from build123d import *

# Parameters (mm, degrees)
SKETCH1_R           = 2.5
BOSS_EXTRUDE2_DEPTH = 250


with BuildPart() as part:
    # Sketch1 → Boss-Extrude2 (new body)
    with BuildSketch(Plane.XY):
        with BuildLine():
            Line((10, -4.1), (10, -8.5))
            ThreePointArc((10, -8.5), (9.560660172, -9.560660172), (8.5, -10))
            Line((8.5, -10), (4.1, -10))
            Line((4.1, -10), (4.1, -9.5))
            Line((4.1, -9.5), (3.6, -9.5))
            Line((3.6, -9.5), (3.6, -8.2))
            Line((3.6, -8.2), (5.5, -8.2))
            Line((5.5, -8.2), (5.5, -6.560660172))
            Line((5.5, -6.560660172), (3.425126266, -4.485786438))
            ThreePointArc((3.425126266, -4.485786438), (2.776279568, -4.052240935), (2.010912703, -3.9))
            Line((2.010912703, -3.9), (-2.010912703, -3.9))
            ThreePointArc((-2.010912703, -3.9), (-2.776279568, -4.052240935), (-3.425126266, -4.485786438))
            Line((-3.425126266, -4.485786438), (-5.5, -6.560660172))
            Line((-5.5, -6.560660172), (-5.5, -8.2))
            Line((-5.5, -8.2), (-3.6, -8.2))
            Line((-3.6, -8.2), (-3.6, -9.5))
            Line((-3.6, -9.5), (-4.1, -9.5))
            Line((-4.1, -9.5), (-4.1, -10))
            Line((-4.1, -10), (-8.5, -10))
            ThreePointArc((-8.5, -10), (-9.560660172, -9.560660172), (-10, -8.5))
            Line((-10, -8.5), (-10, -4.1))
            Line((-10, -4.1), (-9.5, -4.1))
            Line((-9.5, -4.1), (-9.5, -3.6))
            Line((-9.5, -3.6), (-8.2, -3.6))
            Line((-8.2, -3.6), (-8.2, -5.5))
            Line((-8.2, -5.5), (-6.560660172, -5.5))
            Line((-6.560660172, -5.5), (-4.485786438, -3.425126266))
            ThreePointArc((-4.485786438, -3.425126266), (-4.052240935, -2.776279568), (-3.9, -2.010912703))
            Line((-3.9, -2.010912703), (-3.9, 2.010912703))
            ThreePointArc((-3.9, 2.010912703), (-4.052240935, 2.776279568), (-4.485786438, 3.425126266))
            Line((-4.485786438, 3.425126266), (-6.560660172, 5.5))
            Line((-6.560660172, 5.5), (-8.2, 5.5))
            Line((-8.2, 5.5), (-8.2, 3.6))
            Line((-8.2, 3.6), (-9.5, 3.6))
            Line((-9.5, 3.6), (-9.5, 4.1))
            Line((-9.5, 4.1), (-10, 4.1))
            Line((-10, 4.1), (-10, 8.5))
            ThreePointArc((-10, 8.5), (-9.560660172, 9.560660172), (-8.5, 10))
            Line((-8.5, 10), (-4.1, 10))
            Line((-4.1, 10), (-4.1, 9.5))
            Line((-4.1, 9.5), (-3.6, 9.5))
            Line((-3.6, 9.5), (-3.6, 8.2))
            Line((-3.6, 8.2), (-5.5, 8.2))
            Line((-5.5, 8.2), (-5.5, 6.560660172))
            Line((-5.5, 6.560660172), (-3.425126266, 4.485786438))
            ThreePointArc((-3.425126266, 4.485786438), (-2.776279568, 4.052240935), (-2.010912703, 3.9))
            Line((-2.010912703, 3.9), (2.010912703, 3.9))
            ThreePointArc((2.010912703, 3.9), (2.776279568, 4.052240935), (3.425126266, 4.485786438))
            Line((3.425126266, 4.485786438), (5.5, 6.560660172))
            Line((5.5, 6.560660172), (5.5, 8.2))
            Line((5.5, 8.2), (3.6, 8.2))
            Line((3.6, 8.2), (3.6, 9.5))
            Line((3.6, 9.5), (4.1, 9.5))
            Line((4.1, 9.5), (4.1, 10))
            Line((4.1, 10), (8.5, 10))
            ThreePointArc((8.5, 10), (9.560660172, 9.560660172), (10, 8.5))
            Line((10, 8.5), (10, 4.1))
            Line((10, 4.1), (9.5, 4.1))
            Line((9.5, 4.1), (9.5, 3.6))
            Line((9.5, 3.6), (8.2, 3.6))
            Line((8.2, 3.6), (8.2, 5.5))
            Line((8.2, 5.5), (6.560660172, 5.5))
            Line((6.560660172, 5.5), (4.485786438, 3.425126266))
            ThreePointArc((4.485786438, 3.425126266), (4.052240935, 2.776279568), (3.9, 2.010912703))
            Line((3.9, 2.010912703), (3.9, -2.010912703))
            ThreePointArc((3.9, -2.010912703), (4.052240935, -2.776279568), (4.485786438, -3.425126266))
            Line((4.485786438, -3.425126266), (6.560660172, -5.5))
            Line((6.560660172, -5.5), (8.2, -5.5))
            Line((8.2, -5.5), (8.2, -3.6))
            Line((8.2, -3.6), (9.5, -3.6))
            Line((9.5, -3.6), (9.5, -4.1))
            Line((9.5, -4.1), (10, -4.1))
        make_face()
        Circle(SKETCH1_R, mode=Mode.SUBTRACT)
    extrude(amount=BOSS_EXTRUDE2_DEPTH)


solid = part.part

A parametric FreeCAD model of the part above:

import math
import FreeCAD as App
import Part
import Sketcher

V = App.Vector

doc = App.newDocument("Part")
params = doc.addObject("Spreadsheet::Sheet", "Params")
for row, (alias, value) in enumerate([
    ("sketch1_diameter", "5 mm"),
    ("sketch1_radius", "2 mm"),
    ("sketch1_radius2", "1.5 mm"),
    ("sketch1_width", "0.5 mm"),
    ("sketch1_width2", "1.3 mm"),
    ("pad1_length", "250 mm"),
], start=1):
    params.set(f"A{row}", alias)
    params.set(f"B{row}", "=" + value)
    params.setAlias(f"B{row}", alias)

body = doc.addObject("PartDesign::Body", "Body")

# Sketch on XY plane
sketch1 = body.newObject("Sketcher::SketchObject", "Sketch")
sketch1.AttachmentSupport = (doc.getObject("XY_Plane"), [""])
sketch1.MapMode = "FlatFace"
sketch1.addGeometry(Part.LineSegment(V(10, -8.5, 0), V(10, -4.1, 0)), False)
sketch1.addGeometry(Part.LineSegment(V(10, -4.1, 0), V(9.5, -4.1, 0)), False)
sketch1.addGeometry(Part.LineSegment(V(9.5, -4.1, 0), V(9.5, -3.6, 0)), False)
sketch1.addGeometry(Part.LineSegment(V(9.5, -3.6, 0), V(8.2, -3.6, 0)), False)
sketch1.addGeometry(Part.LineSegment(V(8.2, -3.6, 0), V(8.2, -5.5, 0)), False)
sketch1.addGeometry(Part.LineSegment(V(8.2, -5.5, 0), V(6.56, -5.5, 0)), False)
sketch1.addGeometry(Part.LineSegment(V(6.56, -5.5, 0), V(4.49, -3.43, 0)), False)
sketch1.addGeometry(Part.ArcOfCircle(Part.Circle(V(5.9, -2.01, 0), V(0, 0, 1), 2), math.radians(180), math.radians(225)), False)
sketch1.addGeometry(Part.LineSegment(V(3.9, -2.01, 0), V(3.9, 2.01, 0)), False)
sketch1.addGeometry(Part.ArcOfCircle(Part.Circle(V(5.9, 2.01, 0), V(0, 0, 1), 2), math.radians(135), math.radians(180)), False)
sketch1.addGeometry(Part.LineSegment(V(4.49, 3.43, 0), V(6.56, 5.5, 0)), False)
sketch1.addGeometry(Part.LineSegment(V(6.56, 5.5, 0), V(8.2, 5.5, 0)), False)
sketch1.addGeometry(Part.LineSegment(V(8.2, 5.5, 0), V(8.2, 3.6, 0)), False)
sketch1.addGeometry(Part.LineSegment(V(8.2, 3.6, 0), V(9.5, 3.6, 0)), False)
sketch1.addGeometry(Part.LineSegment(V(9.5, 3.6, 0), V(9.5, 4.1, 0)), False)
sketch1.addGeometry(Part.LineSegment(V(9.5, 4.1, 0), V(10, 4.1, 0)), False)
sketch1.addGeometry(Part.LineSegment(V(10, 4.1, 0), V(10, 8.5, 0)), False)
sketch1.addGeometry(Part.ArcOfCircle(Part.Circle(V(8.5, 8.5, 0), V(0, 0, 1), 1.5), math.radians(0), math.radians(90)), False)
sketch1.addGeometry(Part.LineSegment(V(8.5, 10, 0), V(4.1, 10, 0)), False)
sketch1.addGeometry(Part.LineSegment(V(4.1, 10, 0), V(4.1, 9.5, 0)), False)
sketch1.addGeometry(Part.LineSegment(V(4.1, 9.5, 0), V(3.6, 9.5, 0)), False)
sketch1.addGeometry(Part.LineSegment(V(3.6, 9.5, 0), V(3.6, 8.2, 0)), False)
sketch1.addGeometry(Part.LineSegment(V(3.6, 8.2, 0), V(5.5, 8.2, 0)), False)
sketch1.addGeometry(Part.LineSegment(V(5.5, 8.2, 0), V(5.5, 6.56, 0)), False)
sketch1.addGeometry(Part.LineSegment(V(5.5, 6.56, 0), V(3.43, 4.49, 0)), False)
sketch1.addGeometry(Part.ArcOfCircle(Part.Circle(V(2.01, 5.9, 0), V(0, 0, 1), 2), math.radians(-90), math.radians(-45)), False)
sketch1.addGeometry(Part.LineSegment(V(2.01, 3.9, 0), V(-2.01, 3.9, 0)), False)
sketch1.addGeometry(Part.ArcOfCircle(Part.Circle(V(-2.01, 5.9, 0), V(0, 0, 1), 2), math.radians(-135), math.radians(-90)), False)
sketch1.addGeometry(Part.LineSegment(V(-3.43, 4.49, 0), V(-5.5, 6.56, 0)), False)
sketch1.addGeometry(Part.LineSegment(V(-5.5, 6.56, 0), V(-5.5, 8.2, 0)), False)
sketch1.addGeometry(Part.LineSegment(V(-5.5, 8.2, 0), V(-3.6, 8.2, 0)), False)
sketch1.addGeometry(Part.LineSegment(V(-3.6, 8.2, 0), V(-3.6, 9.5, 0)), False)
sketch1.addGeometry(Part.LineSegment(V(-3.6, 9.5, 0), V(-4.1, 9.5, 0)), False)
sketch1.addGeometry(Part.LineSegment(V(-4.1, 9.5, 0), V(-4.1, 10, 0)), False)
sketch1.addGeometry(Part.LineSegment(V(-4.1, 10, 0), V(-8.5, 10, 0)), False)
sketch1.addGeometry(Part.ArcOfCircle(Part.Circle(V(-8.5, 8.5, 0), V(0, 0, 1), 1.5), math.radians(90), math.radians(180)), False)
sketch1.addGeometry(Part.LineSegment(V(-10, 8.5, 0), V(-10, 4.1, 0)), False)
sketch1.addGeometry(Part.LineSegment(V(-10, 4.1, 0), V(-9.5, 4.1, 0)), False)
sketch1.addGeometry(Part.LineSegment(V(-9.5, 4.1, 0), V(-9.5, 3.6, 0)), False)
sketch1.addGeometry(Part.LineSegment(V(-9.5, 3.6, 0), V(-8.2, 3.6, 0)), False)
sketch1.addGeometry(Part.LineSegment(V(-8.2, 3.6, 0), V(-8.2, 5.5, 0)), False)
sketch1.addGeometry(Part.LineSegment(V(-8.2, 5.5, 0), V(-6.56, 5.5, 0)), False)
sketch1.addGeometry(Part.LineSegment(V(-6.56, 5.5, 0), V(-4.49, 3.43, 0)), False)
sketch1.addGeometry(Part.ArcOfCircle(Part.Circle(V(-5.9, 2.01, 0), V(0, 0, 1), 2), math.radians(0), math.radians(45)), False)
sketch1.addGeometry(Part.LineSegment(V(-3.9, 2.01, 0), V(-3.9, -2.01, 0)), False)
sketch1.addGeometry(Part.ArcOfCircle(Part.Circle(V(-5.9, -2.01, 0), V(0, 0, 1), 2), math.radians(-45), math.radians(0)), False)
sketch1.addGeometry(Part.LineSegment(V(-4.49, -3.43, 0), V(-6.56, -5.5, 0)), False)
sketch1.addGeometry(Part.LineSegment(V(-6.56, -5.5, 0), V(-8.2, -5.5, 0)), False)
sketch1.addGeometry(Part.LineSegment(V(-8.2, -5.5, 0), V(-8.2, -3.6, 0)), False)
sketch1.addGeometry(Part.LineSegment(V(-8.2, -3.6, 0), V(-9.5, -3.6, 0)), False)
sketch1.addGeometry(Part.LineSegment(V(-9.5, -3.6, 0), V(-9.5, -4.1, 0)), False)
sketch1.addGeometry(Part.LineSegment(V(-9.5, -4.1, 0), V(-10, -4.1, 0)), False)
sketch1.addGeometry(Part.LineSegment(V(-10, -4.1, 0), V(-10, -8.5, 0)), False)
sketch1.addGeometry(Part.ArcOfCircle(Part.Circle(V(-8.5, -8.5, 0), V(0, 0, 1), 1.5), math.radians(180), math.radians(270)), False)
sketch1.addGeometry(Part.LineSegment(V(-8.5, -10, 0), V(-4.1, -10, 0)), False)
sketch1.addGeometry(Part.LineSegment(V(-4.1, -10, 0), V(-4.1, -9.5, 0)), False)
sketch1.addGeometry(Part.LineSegment(V(-4.1, -9.5, 0), V(-3.6, -9.5, 0)), False)
sketch1.addGeometry(Part.LineSegment(V(-3.6, -9.5, 0), V(-3.6, -8.2, 0)), False)
sketch1.addGeometry(Part.LineSegment(V(-3.6, -8.2, 0), V(-5.5, -8.2, 0)), False)
sketch1.addGeometry(Part.LineSegment(V(-5.5, -8.2, 0), V(-5.5, -6.56, 0)), False)
sketch1.addGeometry(Part.LineSegment(V(-5.5, -6.56, 0), V(-3.43, -4.49, 0)), False)
sketch1.addGeometry(Part.ArcOfCircle(Part.Circle(V(-2.01, -5.9, 0), V(0, 0, 1), 2), math.radians(90), math.radians(135)), False)
sketch1.addGeometry(Part.LineSegment(V(-2.01, -3.9, 0), V(2.01, -3.9, 0)), False)
sketch1.addGeometry(Part.ArcOfCircle(Part.Circle(V(2.01, -5.9, 0), V(0, 0, 1), 2), math.radians(45), math.radians(90)), False)
sketch1.addGeometry(Part.LineSegment(V(3.43, -4.49, 0), V(5.5, -6.56, 0)), False)
sketch1.addGeometry(Part.LineSegment(V(5.5, -6.56, 0), V(5.5, -8.2, 0)), False)
sketch1.addGeometry(Part.LineSegment(V(5.5, -8.2, 0), V(3.6, -8.2, 0)), False)
sketch1.addGeometry(Part.LineSegment(V(3.6, -8.2, 0), V(3.6, -9.5, 0)), False)
sketch1.addGeometry(Part.LineSegment(V(3.6, -9.5, 0), V(4.1, -9.5, 0)), False)
sketch1.addGeometry(Part.LineSegment(V(4.1, -9.5, 0), V(4.1, -10, 0)), False)
sketch1.addGeometry(Part.LineSegment(V(4.1, -10, 0), V(8.5, -10, 0)), False)
sketch1.addGeometry(Part.ArcOfCircle(Part.Circle(V(8.5, -8.5, 0), V(0, 0, 1), 1.5), math.radians(-90), math.radians(0)), False)
sketch1.addGeometry(Part.Circle(V(0, 0, 0), V(0, 0, 1), 2.5), False)
sketch1.addConstraint(Sketcher.Constraint("Coincident", 0, 2, 1, 1))
sketch1.addConstraint(Sketcher.Constraint("Coincident", 1, 2, 2, 1))
sketch1.addConstraint(Sketcher.Constraint("Coincident", 2, 2, 3, 1))
sketch1.addConstraint(Sketcher.Constraint("Coincident", 3, 2, 4, 1))
sketch1.addConstraint(Sketcher.Constraint("Coincident", 4, 2, 5, 1))
sketch1.addConstraint(Sketcher.Constraint("Coincident", 5, 2, 6, 1))
sketch1.addConstraint(Sketcher.Constraint("Tangent", 6, 2, 7, 2))
sketch1.addConstraint(Sketcher.Constraint("Tangent", 7, 1, 8, 1))
sketch1.addConstraint(Sketcher.Constraint("Tangent", 8, 2, 9, 2))
sketch1.addConstraint(Sketcher.Constraint("Tangent", 9, 1, 10, 1))
sketch1.addConstraint(Sketcher.Constraint("Coincident", 10, 2, 11, 1))
sketch1.addConstraint(Sketcher.Constraint("Coincident", 11, 2, 12, 1))
sketch1.addConstraint(Sketcher.Constraint("Coincident", 12, 2, 13, 1))
sketch1.addConstraint(Sketcher.Constraint("Coincident", 13, 2, 14, 1))
sketch1.addConstraint(Sketcher.Constraint("Coincident", 14, 2, 15, 1))
sketch1.addConstraint(Sketcher.Constraint("Coincident", 15, 2, 16, 1))
sketch1.addConstraint(Sketcher.Constraint("Tangent", 16, 2, 17, 1))
sketch1.addConstraint(Sketcher.Constraint("Tangent", 17, 2, 18, 1))
sketch1.addConstraint(Sketcher.Constraint("Coincident", 18, 2, 19, 1))
sketch1.addConstraint(Sketcher.Constraint("Coincident", 19, 2, 20, 1))
sketch1.addConstraint(Sketcher.Constraint("Coincident", 20, 2, 21, 1))
sketch1.addConstraint(Sketcher.Constraint("Coincident", 21, 2, 22, 1))
sketch1.addConstraint(Sketcher.Constraint("Coincident", 22, 2, 23, 1))
sketch1.addConstraint(Sketcher.Constraint("Coincident", 23, 2, 24, 1))
sketch1.addConstraint(Sketcher.Constraint("Tangent", 24, 2, 25, 2))
sketch1.addConstraint(Sketcher.Constraint("Tangent", 25, 1, 26, 1))
sketch1.addConstraint(Sketcher.Constraint("Tangent", 26, 2, 27, 2))
sketch1.addConstraint(Sketcher.Constraint("Tangent", 27, 1, 28, 1))
sketch1.addConstraint(Sketcher.Constraint("Coincident", 28, 2, 29, 1))
sketch1.addConstraint(Sketcher.Constraint("Coincident", 29, 2, 30, 1))
sketch1.addConstraint(Sketcher.Constraint("Coincident", 30, 2, 31, 1))
sketch1.addConstraint(Sketcher.Constraint("Coincident", 31, 2, 32, 1))
sketch1.addConstraint(Sketcher.Constraint("Coincident", 32, 2, 33, 1))
sketch1.addConstraint(Sketcher.Constraint("Coincident", 33, 2, 34, 1))
sketch1.addConstraint(Sketcher.Constraint("Tangent", 34, 2, 35, 1))
sketch1.addConstraint(Sketcher.Constraint("Tangent", 35, 2, 36, 1))
sketch1.addConstraint(Sketcher.Constraint("Coincident", 36, 2, 37, 1))
sketch1.addConstraint(Sketcher.Constraint("Coincident", 37, 2, 38, 1))
sketch1.addConstraint(Sketcher.Constraint("Coincident", 38, 2, 39, 1))
sketch1.addConstraint(Sketcher.Constraint("Coincident", 39, 2, 40, 1))
sketch1.addConstraint(Sketcher.Constraint("Coincident", 40, 2, 41, 1))
sketch1.addConstraint(Sketcher.Constraint("Coincident", 41, 2, 42, 1))
sketch1.addConstraint(Sketcher.Constraint("Tangent", 42, 2, 43, 2))
sketch1.addConstraint(Sketcher.Constraint("Tangent", 43, 1, 44, 1))
sketch1.addConstraint(Sketcher.Constraint("Tangent", 44, 2, 45, 2))
sketch1.addConstraint(Sketcher.Constraint("Tangent", 45, 1, 46, 1))
sketch1.addConstraint(Sketcher.Constraint("Coincident", 46, 2, 47, 1))
sketch1.addConstraint(Sketcher.Constraint("Coincident", 47, 2, 48, 1))
sketch1.addConstraint(Sketcher.Constraint("Coincident", 48, 2, 49, 1))
sketch1.addConstraint(Sketcher.Constraint("Coincident", 49, 2, 50, 1))
sketch1.addConstraint(Sketcher.Constraint("Coincident", 50, 2, 51, 1))
sketch1.addConstraint(Sketcher.Constraint("Coincident", 51, 2, 52, 1))
sketch1.addConstraint(Sketcher.Constraint("Tangent", 52, 2, 53, 1))
sketch1.addConstraint(Sketcher.Constraint("Tangent", 53, 2, 54, 1))
sketch1.addConstraint(Sketcher.Constraint("Coincident", 54, 2, 55, 1))
sketch1.addConstraint(Sketcher.Constraint("Coincident", 55, 2, 56, 1))
sketch1.addConstraint(Sketcher.Constraint("Coincident", 56, 2, 57, 1))
sketch1.addConstraint(Sketcher.Constraint("Coincident", 57, 2, 58, 1))
sketch1.addConstraint(Sketcher.Constraint("Coincident", 58, 2, 59, 1))
sketch1.addConstraint(Sketcher.Constraint("Coincident", 59, 2, 60, 1))
sketch1.addConstraint(Sketcher.Constraint("Tangent", 60, 2, 61, 2))
sketch1.addConstraint(Sketcher.Constraint("Tangent", 61, 1, 62, 1))
sketch1.addConstraint(Sketcher.Constraint("Tangent", 62, 2, 63, 2))
sketch1.addConstraint(Sketcher.Constraint("Tangent", 63, 1, 64, 1))
sketch1.addConstraint(Sketcher.Constraint("Coincident", 64, 2, 65, 1))
sketch1.addConstraint(Sketcher.Constraint("Coincident", 65, 2, 66, 1))
sketch1.addConstraint(Sketcher.Constraint("Coincident", 66, 2, 67, 1))
sketch1.addConstraint(Sketcher.Constraint("Coincident", 67, 2, 68, 1))
sketch1.addConstraint(Sketcher.Constraint("Coincident", 68, 2, 69, 1))
sketch1.addConstraint(Sketcher.Constraint("Coincident", 69, 2, 70, 1))
sketch1.addConstraint(Sketcher.Constraint("Tangent", 70, 2, 71, 1))
sketch1.addConstraint(Sketcher.Constraint("Tangent", 71, 2, 0, 1))
sketch1.addConstraint(Sketcher.Constraint("Vertical", 0))
sketch1.addConstraint(Sketcher.Constraint("Horizontal", 1))
sketch1.addConstraint(Sketcher.Constraint("Vertical", 2))
sketch1.addConstraint(Sketcher.Constraint("Horizontal", 3))
sketch1.addConstraint(Sketcher.Constraint("Vertical", 4))
sketch1.addConstraint(Sketcher.Constraint("Horizontal", 5))
sketch1.addConstraint(Sketcher.Constraint("Vertical", 8))
sketch1.addConstraint(Sketcher.Constraint("Horizontal", 11))
sketch1.addConstraint(Sketcher.Constraint("Vertical", 12))
sketch1.addConstraint(Sketcher.Constraint("Horizontal", 13))
sketch1.addConstraint(Sketcher.Constraint("Vertical", 14))
sketch1.addConstraint(Sketcher.Constraint("Horizontal", 15))
sketch1.addConstraint(Sketcher.Constraint("Vertical", 16))
sketch1.addConstraint(Sketcher.Constraint("Horizontal", 18))
sketch1.addConstraint(Sketcher.Constraint("Vertical", 19))
sketch1.addConstraint(Sketcher.Constraint("Horizontal", 20))
sketch1.addConstraint(Sketcher.Constraint("Vertical", 21))
sketch1.addConstraint(Sketcher.Constraint("Horizontal", 22))
sketch1.addConstraint(Sketcher.Constraint("Vertical", 23))
sketch1.addConstraint(Sketcher.Constraint("Horizontal", 26))
sketch1.addConstraint(Sketcher.Constraint("Vertical", 29))
sketch1.addConstraint(Sketcher.Constraint("Horizontal", 30))
sketch1.addConstraint(Sketcher.Constraint("Vertical", 31))
sketch1.addConstraint(Sketcher.Constraint("Horizontal", 32))
sketch1.addConstraint(Sketcher.Constraint("Vertical", 33))
sketch1.addConstraint(Sketcher.Constraint("Horizontal", 34))
sketch1.addConstraint(Sketcher.Constraint("Vertical", 36))
sketch1.addConstraint(Sketcher.Constraint("Horizontal", 37))
sketch1.addConstraint(Sketcher.Constraint("Vertical", 38))
sketch1.addConstraint(Sketcher.Constraint("Horizontal", 39))
sketch1.addConstraint(Sketcher.Constraint("Vertical", 40))
sketch1.addConstraint(Sketcher.Constraint("Horizontal", 41))
sketch1.addConstraint(Sketcher.Constraint("Vertical", 44))
sketch1.addConstraint(Sketcher.Constraint("Horizontal", 47))
sketch1.addConstraint(Sketcher.Constraint("Vertical", 48))
sketch1.addConstraint(Sketcher.Constraint("Horizontal", 49))
sketch1.addConstraint(Sketcher.Constraint("Vertical", 50))
sketch1.addConstraint(Sketcher.Constraint("Horizontal", 51))
sketch1.addConstraint(Sketcher.Constraint("Vertical", 52))
sketch1.addConstraint(Sketcher.Constraint("Horizontal", 54))
sketch1.addConstraint(Sketcher.Constraint("Vertical", 55))
sketch1.addConstraint(Sketcher.Constraint("Horizontal", 56))
sketch1.addConstraint(Sketcher.Constraint("Vertical", 57))
sketch1.addConstraint(Sketcher.Constraint("Horizontal", 58))
sketch1.addConstraint(Sketcher.Constraint("Vertical", 59))
sketch1.addConstraint(Sketcher.Constraint("Horizontal", 62))
sketch1.addConstraint(Sketcher.Constraint("Vertical", 65))
sketch1.addConstraint(Sketcher.Constraint("Horizontal", 66))
sketch1.addConstraint(Sketcher.Constraint("Vertical", 67))
sketch1.addConstraint(Sketcher.Constraint("Horizontal", 68))
sketch1.addConstraint(Sketcher.Constraint("Vertical", 69))
sketch1.addConstraint(Sketcher.Constraint("Horizontal", 70))
sketch1.addConstraint(Sketcher.Constraint("Coincident", 72, 3, -1, 1))
sketch1.addConstraint(Sketcher.Constraint("Equal", 7, 9))
sketch1.addConstraint(Sketcher.Constraint("Equal", 9, 25))
sketch1.addConstraint(Sketcher.Constraint("Equal", 25, 27))
sketch1.addConstraint(Sketcher.Constraint("Equal", 17, 35))
sketch1.addConstraint(Sketcher.Constraint("Equal", 27, 43))
sketch1.addConstraint(Sketcher.Constraint("Equal", 43, 45))
sketch1.addConstraint(Sketcher.Constraint("Equal", 35, 53))
sketch1.addConstraint(Sketcher.Constraint("Equal", 45, 61))
sketch1.addConstraint(Sketcher.Constraint("Equal", 61, 63))
sketch1.addConstraint(Sketcher.Constraint("Equal", 53, 71))
sketch1.addConstraint(Sketcher.Constraint("Symmetric", 7, 3, 43, 3, -1, 1))
sketch1.addConstraint(Sketcher.Constraint("Symmetric", 17, 3, 53, 3, -1, 1))
sketch1.addConstraint(Sketcher.Constraint("Symmetric", 25, 3, 61, 3, -1, 1))
sketch1.addConstraint(Sketcher.Constraint("Symmetric", 35, 3, 71, 3, -1, 1))
sketch1.addConstraint(Sketcher.Constraint("Symmetric", 1, 2, 37, 2, -1, 1))
sketch1.addConstraint(Sketcher.Constraint("Symmetric", 3, 2, 39, 2, -1, 1))
sketch1.addConstraint(Sketcher.Constraint("Symmetric", 5, 2, 41, 2, -1, 1))
sketch1.addConstraint(Sketcher.Constraint("Symmetric", 9, 1, 45, 1, -1, 1))
sketch1.addConstraint(Sketcher.Constraint("Symmetric", 11, 2, 47, 2, -1, 1))
sketch1.addConstraint(Sketcher.Constraint("Symmetric", 13, 2, 49, 2, -1, 1))
sketch1.addConstraint(Sketcher.Constraint("Symmetric", 19, 2, 55, 2, -1, 1))
sketch1.addConstraint(Sketcher.Constraint("Symmetric", 21, 2, 57, 2, -1, 1))
sketch1.addConstraint(Sketcher.Constraint("Symmetric", 23, 2, 59, 2, -1, 1))
sketch1.addConstraint(Sketcher.Constraint("Symmetric", 27, 1, 63, 1, -1, 1))
sketch1.addConstraint(Sketcher.Constraint("Symmetric", 29, 2, 65, 2, -1, 1))
sketch1.addConstraint(Sketcher.Constraint("Symmetric", 31, 2, 67, 2, -1, 1))
sketch1.addConstraint(Sketcher.Constraint("Symmetric", 17, 3, 35, 3, -2))
sketch1.addConstraint(Sketcher.Constraint("Symmetric", 24, 2, 27, 1, -2))
sketch1.addConstraint(Sketcher.Constraint("Symmetric", 22, 2, 29, 2, -2))
sketch1.addConstraint(Sketcher.Constraint("Symmetric", 20, 2, 31, 2, -2))
sketch1.addConstraint(Sketcher.Constraint("Symmetric", 14, 2, 37, 2, -2))
sketch1.addConstraint(Sketcher.Constraint("Symmetric", 12, 2, 39, 2, -2))
sketch1.addConstraint(Sketcher.Constraint("Symmetric", 10, 2, 41, 2, -2))
sketch1.addConstraint(Sketcher.Constraint("Perpendicular", 6, 10))
sketch1.addConstraint(Sketcher.Constraint("Parallel", 10, 24))
sketch1.addConstraint(Sketcher.Constraint("Perpendicular", 24, 28))
sketch1.addConstraint(Sketcher.Constraint("Horizontal", 1, 2, 50, 2))
sketch1.addConstraint(Sketcher.Constraint("Vertical", 33, 2, 54, 2))
sketch1.addConstraint(Sketcher.Constraint("Vertical", 19, 2, 68, 2))
sketch1.addConstraint(Sketcher.Constraint("Equal", 15, 20))
sketch1.addConstraint(Sketcher.Constraint("Equal", 70, 0))
sketch1.addConstraint(Sketcher.Constraint("Equal", 68, 2))
sketch1.addConstraint(Sketcher.Constraint("Equal", 66, 4))
sketch1.addConstraint(Sketcher.Constraint("Equal", 62, 8))
sketch1.addConstraint(Sketcher.Constraint("Equal", 14, 19))
sketch1.addConstraint(Sketcher.Constraint("Equal", 49, 21))
sketch1.addConstraint(Sketcher.Constraint("Equal", 47, 23))
sketch1.addConstraint(Sketcher.Constraint("Equal", 10, 24))
sketch1.addConstraint(Sketcher.Constraint("Diameter", 72, 5.0))
sketch1.addConstraint(Sketcher.Constraint("Radius", 7, 2.0))
sketch1.addConstraint(Sketcher.Constraint("Radius", 17, 1.5))
sketch1.addConstraint(Sketcher.Constraint("DistanceX", 1, 2, 1, 1, 0.5))
sketch1.addConstraint(Sketcher.Constraint("DistanceX", 3, 2, 3, 1, 1.3))
sketch1.addConstraint(Sketcher.Constraint("DistanceX", 18, 2, 18, 1, 4.4))
sketch1.addConstraint(Sketcher.Constraint("DistanceX", 22, 1, 22, 2, 1.9))
sketch1.addConstraint(Sketcher.Constraint("DistanceX", -1, 1, 0, 2, 10.0))
sketch1.addConstraint(Sketcher.Constraint("DistanceX", -1, 1, 7, 3, 5.9))
sketch1.addConstraint(Sketcher.Constraint("DistanceX", 5, 2, 5, 1, 1.63934))
sketch1.setExpression("Constraints[173]", "Params.sketch1_diameter")
sketch1.setExpression("Constraints[174]", "Params.sketch1_radius")
sketch1.setExpression("Constraints[175]", "Params.sketch1_radius2")
sketch1.setExpression("Constraints[176]", "Params.sketch1_width")
sketch1.setExpression("Constraints[177]", "Params.sketch1_width2")
pad1 = body.newObject("PartDesign::Pad", "Pad")
pad1.Profile = sketch1
pad1.setExpression("Length", "Params.pad1_length")

doc.recompute()
